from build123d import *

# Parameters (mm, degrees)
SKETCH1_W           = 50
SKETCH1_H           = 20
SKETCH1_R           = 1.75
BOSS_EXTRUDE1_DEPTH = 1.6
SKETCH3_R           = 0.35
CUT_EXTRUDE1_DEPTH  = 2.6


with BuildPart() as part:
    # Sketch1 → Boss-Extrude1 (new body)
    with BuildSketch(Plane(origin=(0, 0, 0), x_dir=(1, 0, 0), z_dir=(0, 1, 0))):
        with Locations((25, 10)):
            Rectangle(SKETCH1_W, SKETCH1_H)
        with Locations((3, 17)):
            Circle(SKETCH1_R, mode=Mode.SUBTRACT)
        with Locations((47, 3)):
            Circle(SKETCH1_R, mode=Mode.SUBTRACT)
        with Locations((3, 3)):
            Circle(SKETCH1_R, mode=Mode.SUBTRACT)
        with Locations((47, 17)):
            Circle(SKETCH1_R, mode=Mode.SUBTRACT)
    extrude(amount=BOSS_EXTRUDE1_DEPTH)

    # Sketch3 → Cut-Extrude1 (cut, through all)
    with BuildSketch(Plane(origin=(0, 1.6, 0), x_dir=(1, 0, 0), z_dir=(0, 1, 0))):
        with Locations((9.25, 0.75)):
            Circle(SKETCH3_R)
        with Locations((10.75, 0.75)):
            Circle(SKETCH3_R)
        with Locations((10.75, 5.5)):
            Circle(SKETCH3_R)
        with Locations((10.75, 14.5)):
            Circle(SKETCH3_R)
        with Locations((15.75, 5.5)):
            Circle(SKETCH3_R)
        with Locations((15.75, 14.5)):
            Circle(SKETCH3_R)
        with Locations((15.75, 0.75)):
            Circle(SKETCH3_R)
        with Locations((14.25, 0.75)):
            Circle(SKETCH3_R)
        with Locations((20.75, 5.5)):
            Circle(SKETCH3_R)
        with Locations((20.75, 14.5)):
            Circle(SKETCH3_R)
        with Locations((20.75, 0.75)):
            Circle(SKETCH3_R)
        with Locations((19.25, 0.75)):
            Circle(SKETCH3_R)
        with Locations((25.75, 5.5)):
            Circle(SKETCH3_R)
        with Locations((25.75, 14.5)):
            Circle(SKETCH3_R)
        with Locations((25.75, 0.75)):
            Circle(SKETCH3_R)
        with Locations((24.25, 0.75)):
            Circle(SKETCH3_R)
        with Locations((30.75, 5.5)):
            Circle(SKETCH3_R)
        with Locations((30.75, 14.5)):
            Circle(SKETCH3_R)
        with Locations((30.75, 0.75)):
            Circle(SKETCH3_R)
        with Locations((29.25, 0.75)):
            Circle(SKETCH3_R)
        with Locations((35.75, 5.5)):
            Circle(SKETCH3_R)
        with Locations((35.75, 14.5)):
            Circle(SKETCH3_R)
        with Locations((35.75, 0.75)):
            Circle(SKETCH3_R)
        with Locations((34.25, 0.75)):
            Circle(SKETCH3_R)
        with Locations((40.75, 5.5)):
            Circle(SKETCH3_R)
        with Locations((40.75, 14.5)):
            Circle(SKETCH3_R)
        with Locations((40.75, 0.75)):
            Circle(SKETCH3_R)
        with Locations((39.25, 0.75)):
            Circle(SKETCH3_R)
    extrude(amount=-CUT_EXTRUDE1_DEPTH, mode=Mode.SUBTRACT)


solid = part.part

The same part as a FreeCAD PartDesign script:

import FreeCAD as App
import Part
import Sketcher

V = App.Vector
Q = App.Units.Quantity

doc = App.newDocument("Part")
body = doc.addObject("PartDesign::Body", "Body")

# Sketch on XZ plane
sketch1 = body.newObject("Sketcher::SketchObject", "Sketch")
sketch1.AttachmentSupport = (doc.getObject("XZ_Plane"), [""])
sketch1.MapMode = "FlatFace"
sketch1.addGeometry(Part.LineSegment(V(0, -20, 0), V(0, 0, 0)), False)
sketch1.addGeometry(Part.LineSegment(V(0, 0, 0), V(50, 0, 0)), False)
sketch1.addGeometry(Part.LineSegment(V(50, 0, 0), V(50, -20, 0)), False)
sketch1.addGeometry(Part.LineSegment(V(50, -20, 0), V(0, -20, 0)), False)
sketch1.addGeometry(Part.Circle(V(3, -3, 0), V(0, 0, 1), 1.8), False)
sketch1.addGeometry(Part.Circle(V(47, -3, 0), V(0, 0, 1), 1.8), False)
sketch1.addGeometry(Part.Circle(V(3, -17, 0), V(0, 0, 1), 1.8), False)
sketch1.addGeometry(Part.Circle(V(47, -17, 0), V(0, 0, 1), 1.8), False)
sketch1.addConstraint(Sketcher.Constraint("Coincident", 0, 2, 1, 1))
sketch1.addConstraint(Sketcher.Constraint("Coincident", 1, 2, 2, 1))
sketch1.addConstraint(Sketcher.Constraint("Coincident", 2, 2, 3, 1))
sketch1.addConstraint(Sketcher.Constraint("Coincident", 3, 2, 0, 1))
sketch1.addConstraint(Sketcher.Constraint("Vertical", 0))
sketch1.addConstraint(Sketcher.Constraint("Horizontal", 1))
sketch1.addConstraint(Sketcher.Constraint("Vertical", 2))
sketch1.addConstraint(Sketcher.Constraint("Horizontal", 3))
sketch1.addConstraint(Sketcher.Constraint("Coincident", 0, 2, -1, 1))
sketch1.addConstraint(Sketcher.Constraint("Equal", 4, 5))
sketch1.addConstraint(Sketcher.Constraint("Equal", 5, 6))
sketch1.addConstraint(Sketcher.Constraint("Equal", 6, 7))
sketch1.addConstraint(Sketcher.Constraint("Horizontal", 4, 3, 5, 3))
sketch1.addConstraint(Sketcher.Constraint("Horizontal", 6, 3, 7, 3))
sketch1.addConstraint(Sketcher.Constraint("Vertical", 4, 3, 6, 3))
sketch1.addConstraint(Sketcher.Constraint("Vertical", 5, 3, 7, 3))
sketch1.addConstraint(Sketcher.Constraint("Diameter", 4, Q("3.5 mm")))
sketch1.addConstraint(Sketcher.Constraint("DistanceX", 1, 1, 1, 2, Q("50 mm")))
sketch1.addConstraint(Sketcher.Constraint("DistanceY", 0, 1, 0, 2, Q("20 mm")))
sketch1.addConstraint(Sketcher.Constraint("DistanceX", -1, 1, 4, 3, Q("3 mm")))
sketch1.addConstraint(Sketcher.Constraint("DistanceY", 4, 3, -1, 1, Q("3 mm")))
sketch1.addConstraint(Sketcher.Constraint("DistanceX", -1, 1, 5, 3, Q("47 mm")))
sketch1.addConstraint(Sketcher.Constraint("DistanceY", 6, 3, -1, 1, Q("17 mm")))
pad1 = body.newObject("PartDesign::Pad", "Pad")
pad1.Profile = sketch1
pad1.Length = 1.6
pad1.Reversed = True

# Sketch on XZ plane
sketch2 = body.newObject("Sketcher::SketchObject", "Sketch001")
sketch2.AttachmentSupport = (doc.getObject("XZ_Plane"), [""])
sketch2.MapMode = "FlatFace"
sketch2.AttachmentOffset = App.Placement(V(0, 0, -1.6), App.Rotation())
sketch2.addGeometry(Part.Circle(V(9.25, -0.75, 0), V(0, 0, 1), 0.35), False)
sketch2.addGeometry(Part.Circle(V(10.75, -0.75, 0), V(0, 0, 1), 0.35), False)
sketch2.addGeometry(Part.Circle(V(10.75, -5.5, 0), V(0, 0, 1), 0.35), False)
sketch2.addGeometry(Part.Circle(V(10.75, -14.5, 0), V(0, 0, 1), 0.35), False)
sketch2.addGeometry(Part.Circle(V(15.75, -5.5, 0), V(0, 0, 1), 0.35), False)
sketch2.addGeometry(Part.Circle(V(15.75, -14.5, 0), V(0, 0, 1), 0.35), False)
sketch2.addGeometry(Part.Circle(V(15.75, -0.75, 0), V(0, 0, 1), 0.35), False)
sketch2.addGeometry(Part.Circle(V(14.25, -0.75, 0), V(0, 0, 1), 0.35), False)
sketch2.addGeometry(Part.Circle(V(20.75, -5.5, 0), V(0, 0, 1), 0.35), False)
sketch2.addGeometry(Part.Circle(V(20.75, -14.5, 0), V(0, 0, 1), 0.35), False)
sketch2.addGeometry(Part.Circle(V(20.75, -0.75, 0), V(0, 0, 1), 0.35), False)
sketch2.addGeometry(Part.Circle(V(19.25, -0.75, 0), V(0, 0, 1), 0.35), False)
sketch2.addGeometry(Part.Circle(V(25.75, -5.5, 0), V(0, 0, 1), 0.35), False)
sketch2.addGeometry(Part.Circle(V(25.75, -14.5, 0), V(0, 0, 1), 0.35), False)
sketch2.addGeometry(Part.Circle(V(25.75, -0.75, 0), V(0, 0, 1), 0.35), False)
sketch2.addGeometry(Part.Circle(V(24.25, -0.75, 0), V(0, 0, 1), 0.35), False)
sketch2.addGeometry(Part.Circle(V(30.75, -5.5, 0), V(0, 0, 1), 0.35), False)
sketch2.addGeometry(Part.Circle(V(30.75, -14.5, 0), V(0, 0, 1), 0.35), False)
sketch2.addGeometry(Part.Circle(V(30.75, -0.75, 0), V(0, 0, 1), 0.35), False)
sketch2.addGeometry(Part.Circle(V(29.25, -0.75, 0), V(0, 0, 1), 0.35), False)
sketch2.addGeometry(Part.Circle(V(35.75, -5.5, 0), V(0, 0, 1), 0.35), False)
sketch2.addGeometry(Part.Circle(V(35.75, -14.5, 0), V(0, 0, 1), 0.35), False)
sketch2.addGeometry(Part.Circle(V(35.75, -0.75, 0), V(0, 0, 1), 0.35), False)
sketch2.addGeometry(Part.Circle(V(34.25, -0.75, 0), V(0, 0, 1), 0.35), False)
sketch2.addGeometry(Part.Circle(V(40.75, -5.5, 0), V(0, 0, 1), 0.35), False)
sketch2.addGeometry(Part.Circle(V(40.75, -14.5, 0), V(0, 0, 1), 0.35), False)
sketch2.addGeometry(Part.Circle(V(40.75, -0.75, 0), V(0, 0, 1), 0.35), False)
sketch2.addGeometry(Part.Circle(V(39.25, -0.75, 0), V(0, 0, 1), 0.35), False)
sketch2.addConstraint(Sketcher.Constraint("Equal", 0, 1))
sketch2.addConstraint(Sketcher.Constraint("Equal", 1, 2))
sketch2.addConstraint(Sketcher.Constraint("Equal", 2, 3))
sketch2.addConstraint(Sketcher.Constraint("Equal", 3, 4))
sketch2.addConstraint(Sketcher.Constraint("Equal", 4, 5))
sketch2.addConstraint(Sketcher.Constraint("Equal", 5, 6))
sketch2.addConstraint(Sketcher.Constraint("Equal", 6, 7))
sketch2.addConstraint(Sketcher.Constraint("Equal", 7, 8))
sketch2.addConstraint(Sketcher.Constraint("Equal", 8, 9))
sketch2.addConstraint(Sketcher.Constraint("Equal", 9, 10))
sketch2.addConstraint(Sketcher.Constraint("Equal", 10, 11))
sketch2.addConstraint(Sketcher.Constraint("Equal", 11, 12))
sketch2.addConstraint(Sketcher.Constraint("Equal", 12, 13))
sketch2.addConstraint(Sketcher.Constraint("Equal", 13, 14))
sketch2.addConstraint(Sketcher.Constraint("Equal", 14, 15))
sketch2.addConstraint(Sketcher.Constraint("Equal", 15, 16))
sketch2.addConstraint(Sketcher.Constraint("Equal", 16, 17))
sketch2.addConstraint(Sketcher.Constraint("Equal", 17, 18))
sketch2.addConstraint(Sketcher.Constraint("Equal", 18, 19))
sketch2.addConstraint(Sketcher.Constraint("Equal", 19, 20))
sketch2.addConstraint(Sketcher.Constraint("Equal", 20, 21))
sketch2.addConstraint(Sketcher.Constraint("Equal", 21, 22))
sketch2.addConstraint(Sketcher.Constraint("Equal", 22, 23))
sketch2.addConstraint(Sketcher.Constraint("Equal", 23, 24))
sketch2.addConstraint(Sketcher.Constraint("Equal", 24, 25))
sketch2.addConstraint(Sketcher.Constraint("Equal", 25, 26))
sketch2.addConstraint(Sketcher.Constraint("Equal", 26, 27))
sketch2.addConstraint(Sketcher.Constraint("Horizontal", 0, 3, 1, 3))
sketch2.addConstraint(Sketcher.Constraint("Horizontal", 2, 3, 4, 3))
sketch2.addConstraint(Sketcher.Constraint("Horizontal", 3, 3, 5, 3))
sketch2.addConstraint(Sketcher.Constraint("Horizontal", 1, 3, 6, 3))
sketch2.addConstraint(Sketcher.Constraint("Horizontal", 6, 3, 7, 3))
sketch2.addConstraint(Sketcher.Constraint("Horizontal", 4, 3, 8, 3))
sketch2.addConstraint(Sketcher.Constraint("Horizontal", 5, 3, 9, 3))
sketch2.addConstraint(Sketcher.Constraint("Horizontal", 7, 3, 10, 3))
sketch2.addConstraint(Sketcher.Constraint("Horizontal", 10, 3, 11, 3))
sketch2.addConstraint(Sketcher.Constraint("Horizontal", 8, 3, 12, 3))
sketch2.addConstraint(Sketcher.Constraint("Horizontal", 9, 3, 13, 3))
sketch2.addConstraint(Sketcher.Constraint("Horizontal", 11, 3, 14, 3))
sketch2.addConstraint(Sketcher.Constraint("Horizontal", 14, 3, 15, 3))
sketch2.addConstraint(Sketcher.Constraint("Horizontal", 12, 3, 16, 3))
sketch2.addConstraint(Sketcher.Constraint("Horizontal", 13, 3, 17, 3))
sketch2.addConstraint(Sketcher.Constraint("Horizontal", 15, 3, 18, 3))
sketch2.addConstraint(Sketcher.Constraint("Horizontal", 18, 3, 19, 3))
sketch2.addConstraint(Sketcher.Constraint("Horizontal", 16, 3, 20, 3))
sketch2.addConstraint(Sketcher.Constraint("Horizontal", 17, 3, 21, 3))
sketch2.addConstraint(Sketcher.Constraint("Horizontal", 19, 3, 22, 3))
sketch2.addConstraint(Sketcher.Constraint("Horizontal", 22, 3, 23, 3))
sketch2.addConstraint(Sketcher.Constraint("Horizontal", 20, 3, 24, 3))
sketch2.addConstraint(Sketcher.Constraint("Horizontal", 21, 3, 25, 3))
sketch2.addConstraint(Sketcher.Constraint("Horizontal", 23, 3, 26, 3))
sketch2.addConstraint(Sketcher.Constraint("Horizontal", 26, 3, 27, 3))
sketch2.addConstraint(Sketcher.Constraint("Vertical", 1, 3, 2, 3))
sketch2.addConstraint(Sketcher.Constraint("Vertical", 2, 3, 3, 3))
sketch2.addConstraint(Sketcher.Constraint("Vertical", 4, 3, 5, 3))
sketch2.addConstraint(Sketcher.Constraint("Vertical", 5, 3, 6, 3))
sketch2.addConstraint(Sketcher.Constraint("Vertical", 8, 3, 9, 3))
sketch2.addConstraint(Sketcher.Constraint("Vertical", 9, 3, 10, 3))
sketch2.addConstraint(Sketcher.Constraint("Vertical", 12, 3, 13, 3))
sketch2.addConstraint(Sketcher.Constraint("Vertical", 13, 3, 14, 3))
sketch2.addConstraint(Sketcher.Constraint("Vertical", 16, 3, 17, 3))
sketch2.addConstraint(Sketcher.Constraint("Vertical", 17, 3, 18, 3))
sketch2.addConstraint(Sketcher.Constraint("Vertical", 20, 3, 21, 3))
sketch2.addConstraint(Sketcher.Constraint("Vertical", 21, 3, 22, 3))
sketch2.addConstraint(Sketcher.Constraint("Vertical", 24, 3, 25, 3))
sketch2.addConstraint(Sketcher.Constraint("Vertical", 25, 3, 26, 3))
sketch2.addConstraint(Sketcher.Constraint("Diameter", 0, Q("0.7 mm")))
sketch2.addConstraint(Sketcher.Constraint("DistanceY", 3, 3, 2, 3, Q("9 mm")))
sketch2.addConstraint(Sketcher.Constraint("DistanceX", 2, 3, 4, 3, Q("5 mm")))
sketch2.addConstraint(Sketcher.Constraint("DistanceX", 0, 3, 7, 3, Q("5 mm")))
sketch2.addConstraint(Sketcher.Constraint("DistanceX", 4, 3, 8, 3, Q("5 mm")))
sketch2.addConstraint(Sketcher.Constraint("DistanceX", 7, 3, 11, 3, Q("5 mm")))
sketch2.addConstraint(Sketcher.Constraint("DistanceX", 8, 3, 12, 3, Q("5 mm")))
sketch2.addConstraint(Sketcher.Constraint("DistanceX", 11, 3, 15, 3, Q("5 mm")))
sketch2.addConstraint(Sketcher.Constraint("DistanceX", 12, 3, 16, 3, Q("5 mm")))
sketch2.addConstraint(Sketcher.Constraint("DistanceX", 15, 3, 19, 3, Q("5 mm")))
sketch2.addConstraint(Sketcher.Constraint("DistanceX", 16, 3, 20, 3, Q("5 mm")))
sketch2.addConstraint(Sketcher.Constraint("DistanceX", 19, 3, 23, 3, Q("5 mm")))
sketch2.addConstraint(Sketcher.Constraint("DistanceX", 20, 3, 24, 3, Q("5 mm")))
sketch2.addConstraint(Sketcher.Constraint("DistanceX", 23, 3, 27, 3, Q("5 mm")))
sketch2.addConstraint(Sketcher.Constraint("DistanceY", 2, 3, -1, 1, Q("5.5 mm")))
sketch2.addConstraint(Sketcher.Constraint("DistanceX", 0, 3, 1, 3, Q("1.5 mm")))
sketch2.addConstraint(Sketcher.Constraint("DistanceX", -1, 1, 0, 3, Q("9.25 mm")))
sketch2.addConstraint(Sketcher.Constraint("DistanceY", 0, 3, -1, 1, Q("0.75 mm")))
pocket1 = body.newObject("PartDesign::Pocket", "Pocket")
pocket1.Profile = sketch2
pocket1.Type = "ThroughAll"
pocket1.Reversed = True

doc.recompute()
